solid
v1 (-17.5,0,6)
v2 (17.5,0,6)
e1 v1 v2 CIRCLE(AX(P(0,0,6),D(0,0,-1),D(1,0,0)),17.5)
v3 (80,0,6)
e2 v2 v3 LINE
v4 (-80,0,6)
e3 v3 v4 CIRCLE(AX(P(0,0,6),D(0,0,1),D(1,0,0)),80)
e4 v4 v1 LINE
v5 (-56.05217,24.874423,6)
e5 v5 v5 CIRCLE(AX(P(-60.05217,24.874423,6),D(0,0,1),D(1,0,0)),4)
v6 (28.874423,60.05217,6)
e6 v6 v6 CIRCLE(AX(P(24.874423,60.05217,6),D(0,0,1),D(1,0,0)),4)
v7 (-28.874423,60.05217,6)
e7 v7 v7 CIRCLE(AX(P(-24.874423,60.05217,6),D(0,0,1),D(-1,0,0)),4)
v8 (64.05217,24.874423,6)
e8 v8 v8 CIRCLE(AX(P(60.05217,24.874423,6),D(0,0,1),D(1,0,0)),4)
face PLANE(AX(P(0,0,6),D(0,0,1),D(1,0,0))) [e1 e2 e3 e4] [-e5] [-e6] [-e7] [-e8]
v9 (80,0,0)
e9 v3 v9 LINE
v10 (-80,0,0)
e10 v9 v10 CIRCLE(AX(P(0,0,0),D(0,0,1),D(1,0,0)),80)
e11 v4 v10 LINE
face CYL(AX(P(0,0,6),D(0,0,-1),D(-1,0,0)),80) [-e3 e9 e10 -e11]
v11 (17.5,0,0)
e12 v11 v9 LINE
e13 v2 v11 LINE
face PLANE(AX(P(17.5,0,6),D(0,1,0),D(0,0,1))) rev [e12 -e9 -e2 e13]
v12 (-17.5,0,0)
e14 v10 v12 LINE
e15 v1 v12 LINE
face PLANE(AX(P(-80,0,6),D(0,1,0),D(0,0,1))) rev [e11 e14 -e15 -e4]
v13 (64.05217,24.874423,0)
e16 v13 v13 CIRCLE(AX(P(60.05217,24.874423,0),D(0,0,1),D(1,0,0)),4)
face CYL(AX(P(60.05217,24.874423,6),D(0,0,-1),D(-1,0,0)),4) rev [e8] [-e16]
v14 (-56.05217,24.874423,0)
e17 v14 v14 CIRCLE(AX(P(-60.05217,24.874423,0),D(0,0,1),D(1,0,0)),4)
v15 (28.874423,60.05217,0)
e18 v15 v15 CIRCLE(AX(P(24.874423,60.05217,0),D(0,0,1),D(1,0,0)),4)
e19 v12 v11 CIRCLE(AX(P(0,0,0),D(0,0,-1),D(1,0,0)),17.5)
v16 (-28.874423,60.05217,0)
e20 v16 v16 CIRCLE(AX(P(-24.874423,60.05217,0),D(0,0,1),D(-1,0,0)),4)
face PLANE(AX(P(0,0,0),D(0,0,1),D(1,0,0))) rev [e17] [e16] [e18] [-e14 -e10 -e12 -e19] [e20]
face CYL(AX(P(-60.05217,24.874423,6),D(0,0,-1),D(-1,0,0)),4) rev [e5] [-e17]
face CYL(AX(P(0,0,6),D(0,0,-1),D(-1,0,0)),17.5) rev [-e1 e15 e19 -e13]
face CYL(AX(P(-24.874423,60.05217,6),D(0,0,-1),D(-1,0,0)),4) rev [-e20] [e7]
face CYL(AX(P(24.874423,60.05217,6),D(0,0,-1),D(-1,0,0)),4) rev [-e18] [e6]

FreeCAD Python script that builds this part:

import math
import FreeCAD as App
import Part
import Sketcher
from FreeCAD import Vector
Q = App.Units.Quantity

doc = App.newDocument("Part")
params = doc.addObject("Spreadsheet::Sheet", "Params")
for row, (alias, value) in enumerate([
    ("sketch1_diameter", "8 mm"),
    ("sketch1_radius", "80 mm"),
    ("sketch1_radius2", "17.5 mm"),
    ("pad1_length", "6 mm"),
], start=1):
    params.set(f"A{row}", alias)
    params.set(f"B{row}", "=" + value)
    params.setAlias(f"B{row}", alias)

body = doc.addObject("PartDesign::Body", "Body")

# Sketch on XY plane
sketch1 = doc.addObject("Sketcher::SketchObject", "Sketch")
body.addObject(sketch1)
sketch1.AttachmentSupport = (doc.XY_Plane, [""])
sketch1.MapMode = "FlatFace"
sketch1.addGeometry([
    Part.LineSegment(Vector(-80, 0, 0), Vector(-17.5, 0, 0)),  # 0
    Part.ArcOfCircle(Part.Circle(Vector(0, 0, 0), Vector(0, 0, 1), 17.5), math.radians(0), math.radians(180)),  # 1
    Part.LineSegment(Vector(17.5, 0, 0), Vector(80, 0, 0)),  # 2
    Part.ArcOfCircle(Part.Circle(Vector(0, 0, 0), Vector(0, 0, 1), 80), math.radians(0), math.radians(180)),  # 3
    Part.Circle(Vector(-60.1, 24.9, 0), Vector(0, 0, 1), 4),  # 4
    Part.Circle(Vector(60.1, 24.9, 0), Vector(0, 0, 1), 4),  # 5
    Part.Circle(Vector(-24.9, 60.1, 0), Vector(0, 0, 1), 4),  # 6
    Part.Circle(Vector(24.9, 60.1, 0), Vector(0, 0, 1), 4),  # 7
], False)
sketch1.addConstraint([
    Sketcher.Constraint("Coincident", 0, 2, 1, 2),
    Sketcher.Constraint("Coincident", 1, 1, 2, 1),
    Sketcher.Constraint("Coincident", 2, 2, 3, 1),
    Sketcher.Constraint("Coincident", 3, 2, 0, 1),
    Sketcher.Constraint("Horizontal", 0),
    Sketcher.Constraint("Horizontal", 2),
    Sketcher.Constraint("Coincident", 1, 3, -1, 1),
    Sketcher.Constraint("Coincident", 3, 3, -1, 1),
    Sketcher.Constraint("Equal", 4, 5),
    Sketcher.Constraint("Equal", 5, 6),
    Sketcher.Constraint("Equal", 6, 7),
    Sketcher.Constraint("Symmetric", 4, 3, 5, 3, -2),
    Sketcher.Constraint("Symmetric", 6, 3, 7, 3, -2),
    Sketcher.Constraint("PointOnObject", 0, 2, -1),
    Sketcher.Constraint("PointOnObject", 1, 1, -1),
    Sketcher.Constraint("Diameter", 4, Q("8 mm")),
    Sketcher.Constraint("Radius", 3, Q("80 mm")),
    Sketcher.Constraint("Radius", 1, Q("17.5 mm")),
    Sketcher.Constraint("DistanceX", 4, 3, -1, 1, Q("60.05217 mm")),
    Sketcher.Constraint("DistanceY", -1, 1, 6, 3, Q("60.05217 mm")),
    Sketcher.Constraint("DistanceY", -1, 1, 4, 3, Q("24.874423 mm")),
    Sketcher.Constraint("DistanceX", 6, 3, -1, 1, Q("24.874423 mm")),
])
sketch1.setExpression("Constraints[15]", "Params.sketch1_diameter")
sketch1.setExpression("Constraints[16]", "Params.sketch1_radius")
sketch1.setExpression("Constraints[17]", "Params.sketch1_radius2")
pad1 = doc.addObject("PartDesign::Pad", "Pad")
body.addObject(pad1)
pad1.Profile = sketch1
pad1.setExpression("Length", "Params.pad1_length")

doc.recompute()
